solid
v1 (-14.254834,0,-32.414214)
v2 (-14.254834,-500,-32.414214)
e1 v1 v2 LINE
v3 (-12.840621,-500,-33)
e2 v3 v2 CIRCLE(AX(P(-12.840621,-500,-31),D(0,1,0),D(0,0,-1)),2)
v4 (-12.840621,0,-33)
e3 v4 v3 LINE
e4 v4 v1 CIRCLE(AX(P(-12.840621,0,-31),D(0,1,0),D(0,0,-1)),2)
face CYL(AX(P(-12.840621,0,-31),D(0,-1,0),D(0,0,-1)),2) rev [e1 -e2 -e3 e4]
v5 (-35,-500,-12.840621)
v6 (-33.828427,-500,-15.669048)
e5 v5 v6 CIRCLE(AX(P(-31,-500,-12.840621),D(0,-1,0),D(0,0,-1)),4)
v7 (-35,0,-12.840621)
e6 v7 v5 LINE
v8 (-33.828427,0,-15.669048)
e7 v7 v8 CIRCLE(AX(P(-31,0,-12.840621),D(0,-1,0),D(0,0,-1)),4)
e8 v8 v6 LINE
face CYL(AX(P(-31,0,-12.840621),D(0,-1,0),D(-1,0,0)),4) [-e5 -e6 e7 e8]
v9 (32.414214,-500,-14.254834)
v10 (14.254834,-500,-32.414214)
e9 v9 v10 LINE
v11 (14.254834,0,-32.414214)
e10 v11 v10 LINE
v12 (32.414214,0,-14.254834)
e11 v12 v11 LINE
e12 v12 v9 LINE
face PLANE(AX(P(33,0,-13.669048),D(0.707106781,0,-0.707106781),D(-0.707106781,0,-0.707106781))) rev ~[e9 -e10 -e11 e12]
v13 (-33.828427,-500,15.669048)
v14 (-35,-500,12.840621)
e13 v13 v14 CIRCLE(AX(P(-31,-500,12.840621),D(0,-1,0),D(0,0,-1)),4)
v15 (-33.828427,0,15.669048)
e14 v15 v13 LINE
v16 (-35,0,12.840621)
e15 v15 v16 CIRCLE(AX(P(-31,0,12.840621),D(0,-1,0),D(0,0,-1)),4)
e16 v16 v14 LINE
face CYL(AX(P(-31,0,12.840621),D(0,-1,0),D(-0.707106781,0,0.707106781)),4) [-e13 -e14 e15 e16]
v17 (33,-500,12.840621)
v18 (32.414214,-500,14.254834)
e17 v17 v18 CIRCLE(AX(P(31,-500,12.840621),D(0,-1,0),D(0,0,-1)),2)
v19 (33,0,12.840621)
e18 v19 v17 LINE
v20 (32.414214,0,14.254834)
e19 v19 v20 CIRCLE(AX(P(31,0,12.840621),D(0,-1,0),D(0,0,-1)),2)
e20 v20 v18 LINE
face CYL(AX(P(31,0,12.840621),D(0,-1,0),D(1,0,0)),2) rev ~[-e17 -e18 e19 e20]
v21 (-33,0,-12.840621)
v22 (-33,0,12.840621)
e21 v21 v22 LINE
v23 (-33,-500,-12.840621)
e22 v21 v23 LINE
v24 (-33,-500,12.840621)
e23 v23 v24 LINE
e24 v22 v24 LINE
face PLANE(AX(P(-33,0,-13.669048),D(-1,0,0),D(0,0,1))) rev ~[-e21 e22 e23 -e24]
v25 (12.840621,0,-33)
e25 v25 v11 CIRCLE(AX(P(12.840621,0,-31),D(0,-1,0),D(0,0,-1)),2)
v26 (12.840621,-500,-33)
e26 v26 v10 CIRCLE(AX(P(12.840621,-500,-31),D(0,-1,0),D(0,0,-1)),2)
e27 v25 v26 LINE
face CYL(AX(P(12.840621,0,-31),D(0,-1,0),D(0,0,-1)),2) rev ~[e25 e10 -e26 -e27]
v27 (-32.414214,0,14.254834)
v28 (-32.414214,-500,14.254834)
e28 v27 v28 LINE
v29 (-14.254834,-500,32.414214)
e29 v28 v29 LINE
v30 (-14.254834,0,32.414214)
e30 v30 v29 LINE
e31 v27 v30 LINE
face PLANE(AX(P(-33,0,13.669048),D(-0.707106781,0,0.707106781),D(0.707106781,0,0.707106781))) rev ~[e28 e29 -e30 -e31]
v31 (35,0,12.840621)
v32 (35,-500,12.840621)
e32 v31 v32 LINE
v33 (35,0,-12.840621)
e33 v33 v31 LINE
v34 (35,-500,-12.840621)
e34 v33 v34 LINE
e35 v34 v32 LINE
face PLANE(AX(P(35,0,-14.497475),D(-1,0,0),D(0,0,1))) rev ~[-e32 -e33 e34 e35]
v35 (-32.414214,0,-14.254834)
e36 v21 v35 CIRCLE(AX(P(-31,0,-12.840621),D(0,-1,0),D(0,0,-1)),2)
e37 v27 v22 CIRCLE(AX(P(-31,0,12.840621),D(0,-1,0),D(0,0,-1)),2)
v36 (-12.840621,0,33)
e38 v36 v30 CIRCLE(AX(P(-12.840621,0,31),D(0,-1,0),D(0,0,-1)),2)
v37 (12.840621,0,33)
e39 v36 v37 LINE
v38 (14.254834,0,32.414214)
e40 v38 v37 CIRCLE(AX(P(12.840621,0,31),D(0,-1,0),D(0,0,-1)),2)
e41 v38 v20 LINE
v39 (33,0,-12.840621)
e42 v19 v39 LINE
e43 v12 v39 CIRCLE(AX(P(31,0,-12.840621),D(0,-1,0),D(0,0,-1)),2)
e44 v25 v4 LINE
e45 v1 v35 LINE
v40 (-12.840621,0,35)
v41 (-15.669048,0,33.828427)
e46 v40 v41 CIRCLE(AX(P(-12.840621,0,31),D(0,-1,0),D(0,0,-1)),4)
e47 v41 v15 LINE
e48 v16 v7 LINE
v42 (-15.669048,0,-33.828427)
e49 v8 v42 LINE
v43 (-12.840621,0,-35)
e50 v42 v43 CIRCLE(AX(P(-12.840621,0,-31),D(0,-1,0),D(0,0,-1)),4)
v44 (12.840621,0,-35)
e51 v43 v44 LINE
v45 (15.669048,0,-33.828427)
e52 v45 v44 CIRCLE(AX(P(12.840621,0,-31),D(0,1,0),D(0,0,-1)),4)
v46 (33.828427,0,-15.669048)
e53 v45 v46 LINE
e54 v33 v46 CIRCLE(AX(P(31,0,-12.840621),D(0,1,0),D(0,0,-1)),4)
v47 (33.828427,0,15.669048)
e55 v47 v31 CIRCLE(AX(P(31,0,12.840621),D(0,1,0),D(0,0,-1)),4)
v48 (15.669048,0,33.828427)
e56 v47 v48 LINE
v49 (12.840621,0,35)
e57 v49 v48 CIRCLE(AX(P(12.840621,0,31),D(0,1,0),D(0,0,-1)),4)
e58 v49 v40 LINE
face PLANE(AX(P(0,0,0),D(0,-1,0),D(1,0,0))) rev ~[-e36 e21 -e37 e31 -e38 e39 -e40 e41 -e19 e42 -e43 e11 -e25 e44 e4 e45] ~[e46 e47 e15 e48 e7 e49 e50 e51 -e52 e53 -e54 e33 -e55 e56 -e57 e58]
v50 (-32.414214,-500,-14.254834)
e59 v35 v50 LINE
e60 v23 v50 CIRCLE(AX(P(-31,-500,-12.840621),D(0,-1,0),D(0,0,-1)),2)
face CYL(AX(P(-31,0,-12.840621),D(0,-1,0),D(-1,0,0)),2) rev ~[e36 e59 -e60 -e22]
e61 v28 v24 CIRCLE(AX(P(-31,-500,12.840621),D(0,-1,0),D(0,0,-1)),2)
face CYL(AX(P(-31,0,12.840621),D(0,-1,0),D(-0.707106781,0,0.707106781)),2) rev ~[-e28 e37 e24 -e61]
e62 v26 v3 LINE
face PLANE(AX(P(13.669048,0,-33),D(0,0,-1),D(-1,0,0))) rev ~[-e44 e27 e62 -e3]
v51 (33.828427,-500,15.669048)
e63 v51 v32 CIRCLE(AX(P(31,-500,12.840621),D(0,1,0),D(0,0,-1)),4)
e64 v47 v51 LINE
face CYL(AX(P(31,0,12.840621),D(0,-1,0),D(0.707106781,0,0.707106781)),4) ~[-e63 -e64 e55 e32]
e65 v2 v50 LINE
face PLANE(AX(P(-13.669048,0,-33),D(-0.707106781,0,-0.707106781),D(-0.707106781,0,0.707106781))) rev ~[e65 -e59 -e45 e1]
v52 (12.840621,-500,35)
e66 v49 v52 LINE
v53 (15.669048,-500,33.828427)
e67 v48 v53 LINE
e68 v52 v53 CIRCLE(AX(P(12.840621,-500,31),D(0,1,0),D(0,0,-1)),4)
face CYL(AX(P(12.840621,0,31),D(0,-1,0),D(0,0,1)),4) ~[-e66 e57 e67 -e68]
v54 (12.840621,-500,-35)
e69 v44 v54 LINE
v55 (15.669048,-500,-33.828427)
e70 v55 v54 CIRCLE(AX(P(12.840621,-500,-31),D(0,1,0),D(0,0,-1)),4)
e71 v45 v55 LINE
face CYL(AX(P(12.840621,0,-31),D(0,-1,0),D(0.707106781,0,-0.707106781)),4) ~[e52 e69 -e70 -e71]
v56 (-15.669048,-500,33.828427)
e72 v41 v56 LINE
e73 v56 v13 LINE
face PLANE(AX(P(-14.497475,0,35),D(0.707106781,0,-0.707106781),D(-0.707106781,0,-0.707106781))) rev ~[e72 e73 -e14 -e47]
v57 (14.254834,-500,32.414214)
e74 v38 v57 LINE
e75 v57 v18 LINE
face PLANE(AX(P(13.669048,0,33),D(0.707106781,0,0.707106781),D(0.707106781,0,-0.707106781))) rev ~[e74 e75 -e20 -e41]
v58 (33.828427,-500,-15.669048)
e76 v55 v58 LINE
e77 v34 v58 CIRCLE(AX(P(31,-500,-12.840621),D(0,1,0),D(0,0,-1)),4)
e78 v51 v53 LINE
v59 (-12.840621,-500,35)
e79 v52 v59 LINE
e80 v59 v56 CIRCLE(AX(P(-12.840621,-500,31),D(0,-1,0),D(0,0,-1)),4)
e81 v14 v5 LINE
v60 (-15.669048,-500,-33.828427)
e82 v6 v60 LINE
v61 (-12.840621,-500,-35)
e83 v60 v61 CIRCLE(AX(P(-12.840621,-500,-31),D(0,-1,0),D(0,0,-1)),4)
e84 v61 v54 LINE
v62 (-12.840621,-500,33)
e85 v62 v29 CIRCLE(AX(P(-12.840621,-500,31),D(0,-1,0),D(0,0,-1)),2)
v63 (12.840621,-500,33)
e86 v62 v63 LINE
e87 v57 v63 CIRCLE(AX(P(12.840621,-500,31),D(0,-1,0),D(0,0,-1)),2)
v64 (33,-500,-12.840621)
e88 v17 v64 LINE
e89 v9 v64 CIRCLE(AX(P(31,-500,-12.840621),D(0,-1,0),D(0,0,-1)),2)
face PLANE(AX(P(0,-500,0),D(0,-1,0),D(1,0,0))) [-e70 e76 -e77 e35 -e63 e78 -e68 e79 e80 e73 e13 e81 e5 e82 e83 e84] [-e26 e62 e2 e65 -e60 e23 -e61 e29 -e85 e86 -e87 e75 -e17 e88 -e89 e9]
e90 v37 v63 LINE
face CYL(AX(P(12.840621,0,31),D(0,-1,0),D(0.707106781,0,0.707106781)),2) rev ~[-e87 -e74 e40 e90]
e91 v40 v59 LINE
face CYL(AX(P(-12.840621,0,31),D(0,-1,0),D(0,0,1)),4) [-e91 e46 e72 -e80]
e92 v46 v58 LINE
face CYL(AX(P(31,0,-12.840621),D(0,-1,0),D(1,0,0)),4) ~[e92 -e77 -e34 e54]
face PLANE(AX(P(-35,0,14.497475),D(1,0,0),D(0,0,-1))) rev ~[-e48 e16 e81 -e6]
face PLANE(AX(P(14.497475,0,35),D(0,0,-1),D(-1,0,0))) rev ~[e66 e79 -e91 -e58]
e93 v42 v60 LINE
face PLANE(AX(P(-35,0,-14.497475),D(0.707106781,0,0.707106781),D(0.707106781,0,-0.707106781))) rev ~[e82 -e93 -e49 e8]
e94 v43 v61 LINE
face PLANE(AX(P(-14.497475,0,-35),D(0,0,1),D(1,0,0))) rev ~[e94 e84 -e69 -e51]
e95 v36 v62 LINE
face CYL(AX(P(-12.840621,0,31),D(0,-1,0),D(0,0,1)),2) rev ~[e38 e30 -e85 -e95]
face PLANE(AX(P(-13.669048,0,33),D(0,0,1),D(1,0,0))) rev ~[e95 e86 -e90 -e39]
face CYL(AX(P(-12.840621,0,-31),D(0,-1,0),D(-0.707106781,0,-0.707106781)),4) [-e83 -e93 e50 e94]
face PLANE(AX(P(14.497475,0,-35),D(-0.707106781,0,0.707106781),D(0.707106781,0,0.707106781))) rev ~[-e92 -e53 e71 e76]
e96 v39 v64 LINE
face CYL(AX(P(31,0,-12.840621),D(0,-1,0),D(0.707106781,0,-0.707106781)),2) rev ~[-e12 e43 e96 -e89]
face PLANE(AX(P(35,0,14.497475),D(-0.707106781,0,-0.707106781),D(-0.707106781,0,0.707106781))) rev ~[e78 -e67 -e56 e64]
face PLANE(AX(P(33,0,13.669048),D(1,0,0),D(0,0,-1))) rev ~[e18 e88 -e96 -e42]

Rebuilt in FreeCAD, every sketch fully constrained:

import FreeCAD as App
import Part
import Sketcher

V = App.Vector


def edges_at(feature, points):
    """Names of the edges that pass closest to the given points."""
    edges = feature.Shape.Edges
    near = lambda p: min(range(len(edges)), key=lambda i: edges[i].distToShape(Part.Vertex(*p))[0])
    return sorted({f"Edge{near(p) + 1}" for p in points})


def add_polygon(sketch, points):
    """Adds a closed chain of lines whose ends are joined by coincident constraints."""
    first, n = sketch.GeometryCount, len(points)
    for a, b in zip(points, points[1:] + points[:1]):
        sketch.addGeometry(Part.LineSegment(App.Vector(*a, 0), App.Vector(*b, 0)), False)
    for i in range(n):
        sketch.addConstraint(Sketcher.Constraint("Coincident", first + i, 2, first + (i + 1) % n, 1))

doc = App.newDocument("Part")
body = doc.addObject("PartDesign::Body", "Body")

# Sketch on XZ plane
sketch1 = body.newObject("Sketcher::SketchObject", "Sketch")
sketch1.AttachmentSupport = (doc.getObject("XZ_Plane"), [""])
sketch1.MapMode = "FlatFace"
add_polygon(sketch1, [(14, 35), (-14, 35), (-35, 14), (-35, -14), (-14, -35), (14, -35), (35, -14), (35, 14)])  # lines 0-7
add_polygon(sketch1, [(14, -33), (-14, -33), (-33, -14), (-33, 14), (-14, 33), (14, 33), (33, 14), (33, -14)])  # lines 8-15
sketch1.addConstraint(Sketcher.Constraint("Horizontal", 0))
sketch1.addConstraint(Sketcher.Constraint("Vertical", 2))
sketch1.addConstraint(Sketcher.Constraint("Horizontal", 4))
sketch1.addConstraint(Sketcher.Constraint("Vertical", 6))
sketch1.addConstraint(Sketcher.Constraint("Horizontal", 8))
sketch1.addConstraint(Sketcher.Constraint("Vertical", 10))
sketch1.addConstraint(Sketcher.Constraint("Horizontal", 12))
sketch1.addConstraint(Sketcher.Constraint("Vertical", 14))
sketch1.addConstraint(Sketcher.Constraint("Symmetric", 0, 2, 4, 2, -1, 1))
sketch1.addConstraint(Sketcher.Constraint("Symmetric", 1, 2, 5, 2, -1, 1))
sketch1.addConstraint(Sketcher.Constraint("Symmetric", 8, 2, 12, 2, -1, 1))
sketch1.addConstraint(Sketcher.Constraint("Symmetric", 9, 2, 13, 2, -1, 1))
sketch1.addConstraint(Sketcher.Constraint("Perpendicular", 1, 3))
sketch1.addConstraint(Sketcher.Constraint("Perpendicular", 5, 7))
sketch1.addConstraint(Sketcher.Constraint("Parallel", 7, 9))
sketch1.addConstraint(Sketcher.Constraint("Perpendicular", 9, 11))
sketch1.addConstraint(Sketcher.Constraint("Perpendicular", 13, 15))
sketch1.addConstraint(Sketcher.Constraint("Horizontal", 2, 2, 5, 2))
sketch1.addConstraint(Sketcher.Constraint("Horizontal", 1, 2, 6, 2))
sketch1.addConstraint(Sketcher.Constraint("Horizontal", 10, 2, 13, 2))
sketch1.addConstraint(Sketcher.Constraint("Horizontal", 9, 2, 14, 2))
sketch1.addConstraint(Sketcher.Constraint("Vertical", 0, 2, 3, 2))
sketch1.addConstraint(Sketcher.Constraint("Equal", 4, 2))
sketch1.addConstraint(Sketcher.Constraint("Equal", 12, 10))
sketch1.addConstraint(Sketcher.Constraint("DistanceY", -1, 1, 0, 2, 35.0))
sketch1.addConstraint(Sketcher.Constraint("DistanceY", 8, 2, -1, 1, 33.0))
sketch1.addConstraint(Sketcher.Constraint("DistanceX", 0, 2, 0, 1, 28.99495))
sketch1.addConstraint(Sketcher.Constraint("DistanceX", 8, 2, 8, 1, 27.338096))
pad1 = body.newObject("PartDesign::Pad", "Pad")
pad1.Profile = sketch1
pad1.Length = 500
doc.recompute()

fillet = body.newObject("PartDesign::Fillet", "Fillet")
fillet.Base = (pad1, edges_at(pad1, [
    (14.497, -250, 35),
    (-14.497, -250, 35),
    (35, -250, 14.497),
    (35, -250, -14.497),
    (14.497, -250, -35),
    (-14.497, -250, -35),
    (-35, -250, -14.497),
    (-35, -250, 14.497),
]))
fillet.Radius = 4
doc.recompute()

fillet2 = body.newObject("PartDesign::Fillet", "Fillet001")
fillet2.Base = (fillet, edges_at(fillet, [
    (33, -250, 13.669),
    (33, -250, -13.669),
    (13.669, -250, -33),
    (-13.669, -250, -33),
    (-33, -250, -13.669),
    (-33, -250, 13.669),
    (-13.669, -250, 33),
    (13.669, -250, 33),
]))
fillet2.Radius = 2

doc.recompute()
